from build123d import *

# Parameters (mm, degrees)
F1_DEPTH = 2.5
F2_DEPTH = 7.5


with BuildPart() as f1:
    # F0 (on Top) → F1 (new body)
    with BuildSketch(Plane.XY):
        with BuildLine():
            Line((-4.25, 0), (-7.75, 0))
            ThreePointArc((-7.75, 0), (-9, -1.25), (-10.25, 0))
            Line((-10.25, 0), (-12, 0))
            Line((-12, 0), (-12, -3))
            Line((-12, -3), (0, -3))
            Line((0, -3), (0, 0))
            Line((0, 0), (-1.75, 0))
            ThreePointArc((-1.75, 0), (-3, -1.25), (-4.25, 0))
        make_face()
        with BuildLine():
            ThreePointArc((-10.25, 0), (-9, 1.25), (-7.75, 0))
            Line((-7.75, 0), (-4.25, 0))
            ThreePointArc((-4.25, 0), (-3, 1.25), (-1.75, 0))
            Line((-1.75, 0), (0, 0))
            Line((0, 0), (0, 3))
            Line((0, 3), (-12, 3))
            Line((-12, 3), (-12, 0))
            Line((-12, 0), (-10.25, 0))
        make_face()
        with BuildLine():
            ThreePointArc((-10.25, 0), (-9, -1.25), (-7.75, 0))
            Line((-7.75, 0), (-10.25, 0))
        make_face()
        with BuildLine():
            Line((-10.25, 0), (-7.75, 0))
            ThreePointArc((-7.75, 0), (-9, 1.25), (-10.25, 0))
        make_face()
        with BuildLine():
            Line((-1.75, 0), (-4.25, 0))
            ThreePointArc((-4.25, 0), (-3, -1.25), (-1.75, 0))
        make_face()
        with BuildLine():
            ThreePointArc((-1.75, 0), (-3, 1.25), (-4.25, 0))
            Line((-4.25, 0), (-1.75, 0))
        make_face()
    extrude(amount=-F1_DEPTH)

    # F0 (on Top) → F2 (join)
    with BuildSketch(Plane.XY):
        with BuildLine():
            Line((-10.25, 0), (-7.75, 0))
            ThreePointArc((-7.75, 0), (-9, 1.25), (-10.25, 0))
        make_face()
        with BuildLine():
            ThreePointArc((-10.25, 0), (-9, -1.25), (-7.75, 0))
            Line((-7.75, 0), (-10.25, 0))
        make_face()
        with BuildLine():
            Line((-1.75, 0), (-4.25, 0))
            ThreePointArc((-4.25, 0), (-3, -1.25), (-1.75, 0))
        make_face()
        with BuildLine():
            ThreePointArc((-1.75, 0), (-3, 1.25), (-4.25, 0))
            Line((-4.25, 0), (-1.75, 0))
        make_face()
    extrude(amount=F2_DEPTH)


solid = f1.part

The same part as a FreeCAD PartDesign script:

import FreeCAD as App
import Part
import Sketcher
Q = App.Units.Quantity


def add_polygon(sketch, points):
    """Adds a closed chain of lines whose ends are joined by coincident constraints."""
    first, n = sketch.GeometryCount, len(points)
    for a, b in zip(points, points[1:] + points[:1]):
        sketch.addGeometry(Part.LineSegment(App.Vector(*a, 0), App.Vector(*b, 0)), False)
    for i in range(n):
        sketch.addConstraint(Sketcher.Constraint("Coincident", first + i, 2, first + (i + 1) % n, 1))

doc = App.newDocument("Part")
params = doc.addObject("Spreadsheet::Sheet", "Params")
for row, (alias, value) in enumerate([
    ("sketch1_width", "12 mm"),
    ("sketch1_height", "6 mm"),
    ("pad1_length", "2.5 mm"),
    ("sketch2_diameter", "2.5 mm"),
    ("pad2_length", "7.5 mm"),
], start=1):
    params.set(f"A{row}", alias)
    params.set(f"B{row}", "=" + value)
    params.setAlias(f"B{row}", alias)

body = doc.addObject("PartDesign::Body", "Body")

# Sketch on XY plane
sketch1 = body.newObject("Sketcher::SketchObject", "Sketch")
sketch1.AttachmentSupport = (doc.getObject("XY_Plane"), [""])
sketch1.MapMode = "FlatFace"
add_polygon(sketch1, [(-12, -3), (0, -3), (0, 3), (-12, 3)])  # lines 0-3
sketch1.addConstraint([
    Sketcher.Constraint("Horizontal", 0),
    Sketcher.Constraint("Vertical", 1),
    Sketcher.Constraint("Horizontal", 2),
    Sketcher.Constraint("Vertical", 3),
    Sketcher.Constraint("Symmetric", 0, 2, 1, 2, -1, 1),
    Sketcher.Constraint("DistanceX", 0, 1, 0, 2, Q("12 mm")),
    Sketcher.Constraint("DistanceY", 1, 1, 1, 2, Q("6 mm")),
])
sketch1.setExpression("Constraints[9]", "Params.sketch1_width")
sketch1.setExpression("Constraints[10]", "Params.sketch1_height")
pad1 = body.newObject("PartDesign::Pad", "Pad")
pad1.Profile = sketch1
pad1.setExpression("Length", "Params.pad1_length")
pad1.Reversed = True

# Sketch on XY plane
sketch2 = body.newObject("Sketcher::SketchObject", "Sketch001")
sketch2.AttachmentSupport = (doc.getObject("XY_Plane"), [""])
sketch2.MapMode = "FlatFace"
sketch2.addGeometry([
    Part.Circle(App.Vector(-9, 0, 0), App.Vector(0, 0, 1), 1.2),
    Part.Circle(App.Vector(-3, 0, 0), App.Vector(0, 0, 1), 1.2),
], False)
sketch2.addConstraint([
    Sketcher.Constraint("Equal", 0, 1),
    Sketcher.Constraint("PointOnObject", 0, 3, -1),
    Sketcher.Constraint("PointOnObject", 1, 3, -1),
    Sketcher.Constraint("Diameter", 0, Q("2.5 mm")),
    Sketcher.Constraint("DistanceX", 0, 3, -1, 1, Q("9 mm")),
    Sketcher.Constraint("DistanceX", 1, 3, -1, 1, Q("3 mm")),
])
sketch2.setExpression("Constraints[3]", "Params.sketch2_diameter")
pad2 = body.newObject("PartDesign::Pad", "Pad001")
pad2.Profile = sketch2
pad2.setExpression("Length", "Params.pad2_length")

doc.recompute()
